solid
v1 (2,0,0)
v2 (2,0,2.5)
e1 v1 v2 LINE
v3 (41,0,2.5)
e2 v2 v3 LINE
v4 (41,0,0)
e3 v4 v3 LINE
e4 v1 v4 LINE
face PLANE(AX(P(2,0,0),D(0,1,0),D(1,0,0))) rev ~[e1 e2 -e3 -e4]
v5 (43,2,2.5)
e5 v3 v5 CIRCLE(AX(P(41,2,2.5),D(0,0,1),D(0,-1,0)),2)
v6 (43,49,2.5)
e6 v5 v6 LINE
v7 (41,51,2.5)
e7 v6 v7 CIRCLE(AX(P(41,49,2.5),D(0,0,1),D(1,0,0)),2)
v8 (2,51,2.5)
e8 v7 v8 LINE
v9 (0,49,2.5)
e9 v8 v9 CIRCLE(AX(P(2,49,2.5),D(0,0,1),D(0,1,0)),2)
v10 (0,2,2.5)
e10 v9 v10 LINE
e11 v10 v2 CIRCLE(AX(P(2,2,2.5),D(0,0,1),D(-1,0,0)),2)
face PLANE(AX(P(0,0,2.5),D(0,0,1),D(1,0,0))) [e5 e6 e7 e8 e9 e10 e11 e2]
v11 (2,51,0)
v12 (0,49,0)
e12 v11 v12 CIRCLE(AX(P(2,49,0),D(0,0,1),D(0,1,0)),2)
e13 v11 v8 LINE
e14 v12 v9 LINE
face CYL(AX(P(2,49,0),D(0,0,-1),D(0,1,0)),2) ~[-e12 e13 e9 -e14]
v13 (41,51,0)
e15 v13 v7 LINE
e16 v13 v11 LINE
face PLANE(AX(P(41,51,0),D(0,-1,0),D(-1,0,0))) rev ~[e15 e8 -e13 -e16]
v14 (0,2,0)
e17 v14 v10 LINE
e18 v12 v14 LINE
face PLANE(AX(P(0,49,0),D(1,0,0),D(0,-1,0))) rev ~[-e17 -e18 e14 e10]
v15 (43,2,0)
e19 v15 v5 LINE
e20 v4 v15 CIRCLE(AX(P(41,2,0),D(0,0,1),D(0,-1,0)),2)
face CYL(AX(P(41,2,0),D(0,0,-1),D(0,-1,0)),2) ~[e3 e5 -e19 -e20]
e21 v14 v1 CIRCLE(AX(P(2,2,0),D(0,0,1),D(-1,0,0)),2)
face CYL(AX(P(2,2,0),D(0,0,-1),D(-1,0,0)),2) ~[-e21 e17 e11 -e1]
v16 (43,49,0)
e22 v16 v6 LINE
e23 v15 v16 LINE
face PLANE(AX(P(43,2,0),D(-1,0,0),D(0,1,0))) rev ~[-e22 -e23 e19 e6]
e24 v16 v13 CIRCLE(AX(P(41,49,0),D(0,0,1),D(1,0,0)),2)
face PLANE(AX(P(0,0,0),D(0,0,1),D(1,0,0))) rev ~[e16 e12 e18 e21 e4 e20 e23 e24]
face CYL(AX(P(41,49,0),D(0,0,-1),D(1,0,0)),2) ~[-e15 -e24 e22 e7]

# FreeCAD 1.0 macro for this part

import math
import FreeCAD as App
import Part
import Sketcher

V = App.Vector

doc = App.newDocument("Part")
body = doc.addObject("PartDesign::Body", "Body")

# Sketch on XY plane
sketch1 = body.newObject("Sketcher::SketchObject", "Sketch")
sketch1.AttachmentSupport = (doc.getObject("XY_Plane"), [""])
sketch1.MapMode = "FlatFace"
sketch1.addGeometry([
    Part.ArcOfCircle(Part.Circle(V(2, 2, 0), V(0, 0, 1), 2), math.radians(180), math.radians(270)),  # 0
    Part.LineSegment(V(2, 0, 0), V(41, 0, 0)),  # 1
    Part.ArcOfCircle(Part.Circle(V(41, 2, 0), V(0, 0, 1), 2), math.radians(-90), math.radians(0)),  # 2
    Part.LineSegment(V(43, 2, 0), V(43, 49, 0)),  # 3
    Part.ArcOfCircle(Part.Circle(V(41, 49, 0), V(0, 0, 1), 2), math.radians(0), math.radians(90)),  # 4
    Part.LineSegment(V(41, 51, 0), V(2, 51, 0)),  # 5
    Part.ArcOfCircle(Part.Circle(V(2, 49, 0), V(0, 0, 1), 2), math.radians(90), math.radians(180)),  # 6
    Part.LineSegment(V(0, 49, 0), V(0, 2, 0)),  # 7
], False)
sketch1.addConstraint([
    Sketcher.Constraint("Tangent", 0, 2, 1, 1),
    Sketcher.Constraint("Tangent", 1, 2, 2, 1),
    Sketcher.Constraint("Tangent", 2, 2, 3, 1),
    Sketcher.Constraint("Tangent", 3, 2, 4, 1),
    Sketcher.Constraint("Tangent", 4, 2, 5, 1),
    Sketcher.Constraint("Tangent", 5, 2, 6, 1),
    Sketcher.Constraint("Tangent", 6, 2, 7, 1),
    Sketcher.Constraint("Tangent", 7, 2, 0, 1),
    Sketcher.Constraint("Horizontal", 1),
    Sketcher.Constraint("Vertical", 3),
    Sketcher.Constraint("Horizontal", 5),
    Sketcher.Constraint("Vertical", 7),
    Sketcher.Constraint("Equal", 0, 2),
    Sketcher.Constraint("Equal", 2, 4),
    Sketcher.Constraint("Equal", 4, 6),
    Sketcher.Constraint("PointOnObject", 0, 2, -1),
    Sketcher.Constraint("PointOnObject", 6, 2, -2),
    Sketcher.Constraint("Radius", 0, 2.0),
    Sketcher.Constraint("DistanceX", -1, 1, 2, 2, 43.0),
    Sketcher.Constraint("DistanceY", -1, 1, 4, 2, 51.0),
])
pad1 = body.newObject("PartDesign::Pad", "Pad")
pad1.Profile = sketch1
pad1.Length = 2.5

doc.recompute()
